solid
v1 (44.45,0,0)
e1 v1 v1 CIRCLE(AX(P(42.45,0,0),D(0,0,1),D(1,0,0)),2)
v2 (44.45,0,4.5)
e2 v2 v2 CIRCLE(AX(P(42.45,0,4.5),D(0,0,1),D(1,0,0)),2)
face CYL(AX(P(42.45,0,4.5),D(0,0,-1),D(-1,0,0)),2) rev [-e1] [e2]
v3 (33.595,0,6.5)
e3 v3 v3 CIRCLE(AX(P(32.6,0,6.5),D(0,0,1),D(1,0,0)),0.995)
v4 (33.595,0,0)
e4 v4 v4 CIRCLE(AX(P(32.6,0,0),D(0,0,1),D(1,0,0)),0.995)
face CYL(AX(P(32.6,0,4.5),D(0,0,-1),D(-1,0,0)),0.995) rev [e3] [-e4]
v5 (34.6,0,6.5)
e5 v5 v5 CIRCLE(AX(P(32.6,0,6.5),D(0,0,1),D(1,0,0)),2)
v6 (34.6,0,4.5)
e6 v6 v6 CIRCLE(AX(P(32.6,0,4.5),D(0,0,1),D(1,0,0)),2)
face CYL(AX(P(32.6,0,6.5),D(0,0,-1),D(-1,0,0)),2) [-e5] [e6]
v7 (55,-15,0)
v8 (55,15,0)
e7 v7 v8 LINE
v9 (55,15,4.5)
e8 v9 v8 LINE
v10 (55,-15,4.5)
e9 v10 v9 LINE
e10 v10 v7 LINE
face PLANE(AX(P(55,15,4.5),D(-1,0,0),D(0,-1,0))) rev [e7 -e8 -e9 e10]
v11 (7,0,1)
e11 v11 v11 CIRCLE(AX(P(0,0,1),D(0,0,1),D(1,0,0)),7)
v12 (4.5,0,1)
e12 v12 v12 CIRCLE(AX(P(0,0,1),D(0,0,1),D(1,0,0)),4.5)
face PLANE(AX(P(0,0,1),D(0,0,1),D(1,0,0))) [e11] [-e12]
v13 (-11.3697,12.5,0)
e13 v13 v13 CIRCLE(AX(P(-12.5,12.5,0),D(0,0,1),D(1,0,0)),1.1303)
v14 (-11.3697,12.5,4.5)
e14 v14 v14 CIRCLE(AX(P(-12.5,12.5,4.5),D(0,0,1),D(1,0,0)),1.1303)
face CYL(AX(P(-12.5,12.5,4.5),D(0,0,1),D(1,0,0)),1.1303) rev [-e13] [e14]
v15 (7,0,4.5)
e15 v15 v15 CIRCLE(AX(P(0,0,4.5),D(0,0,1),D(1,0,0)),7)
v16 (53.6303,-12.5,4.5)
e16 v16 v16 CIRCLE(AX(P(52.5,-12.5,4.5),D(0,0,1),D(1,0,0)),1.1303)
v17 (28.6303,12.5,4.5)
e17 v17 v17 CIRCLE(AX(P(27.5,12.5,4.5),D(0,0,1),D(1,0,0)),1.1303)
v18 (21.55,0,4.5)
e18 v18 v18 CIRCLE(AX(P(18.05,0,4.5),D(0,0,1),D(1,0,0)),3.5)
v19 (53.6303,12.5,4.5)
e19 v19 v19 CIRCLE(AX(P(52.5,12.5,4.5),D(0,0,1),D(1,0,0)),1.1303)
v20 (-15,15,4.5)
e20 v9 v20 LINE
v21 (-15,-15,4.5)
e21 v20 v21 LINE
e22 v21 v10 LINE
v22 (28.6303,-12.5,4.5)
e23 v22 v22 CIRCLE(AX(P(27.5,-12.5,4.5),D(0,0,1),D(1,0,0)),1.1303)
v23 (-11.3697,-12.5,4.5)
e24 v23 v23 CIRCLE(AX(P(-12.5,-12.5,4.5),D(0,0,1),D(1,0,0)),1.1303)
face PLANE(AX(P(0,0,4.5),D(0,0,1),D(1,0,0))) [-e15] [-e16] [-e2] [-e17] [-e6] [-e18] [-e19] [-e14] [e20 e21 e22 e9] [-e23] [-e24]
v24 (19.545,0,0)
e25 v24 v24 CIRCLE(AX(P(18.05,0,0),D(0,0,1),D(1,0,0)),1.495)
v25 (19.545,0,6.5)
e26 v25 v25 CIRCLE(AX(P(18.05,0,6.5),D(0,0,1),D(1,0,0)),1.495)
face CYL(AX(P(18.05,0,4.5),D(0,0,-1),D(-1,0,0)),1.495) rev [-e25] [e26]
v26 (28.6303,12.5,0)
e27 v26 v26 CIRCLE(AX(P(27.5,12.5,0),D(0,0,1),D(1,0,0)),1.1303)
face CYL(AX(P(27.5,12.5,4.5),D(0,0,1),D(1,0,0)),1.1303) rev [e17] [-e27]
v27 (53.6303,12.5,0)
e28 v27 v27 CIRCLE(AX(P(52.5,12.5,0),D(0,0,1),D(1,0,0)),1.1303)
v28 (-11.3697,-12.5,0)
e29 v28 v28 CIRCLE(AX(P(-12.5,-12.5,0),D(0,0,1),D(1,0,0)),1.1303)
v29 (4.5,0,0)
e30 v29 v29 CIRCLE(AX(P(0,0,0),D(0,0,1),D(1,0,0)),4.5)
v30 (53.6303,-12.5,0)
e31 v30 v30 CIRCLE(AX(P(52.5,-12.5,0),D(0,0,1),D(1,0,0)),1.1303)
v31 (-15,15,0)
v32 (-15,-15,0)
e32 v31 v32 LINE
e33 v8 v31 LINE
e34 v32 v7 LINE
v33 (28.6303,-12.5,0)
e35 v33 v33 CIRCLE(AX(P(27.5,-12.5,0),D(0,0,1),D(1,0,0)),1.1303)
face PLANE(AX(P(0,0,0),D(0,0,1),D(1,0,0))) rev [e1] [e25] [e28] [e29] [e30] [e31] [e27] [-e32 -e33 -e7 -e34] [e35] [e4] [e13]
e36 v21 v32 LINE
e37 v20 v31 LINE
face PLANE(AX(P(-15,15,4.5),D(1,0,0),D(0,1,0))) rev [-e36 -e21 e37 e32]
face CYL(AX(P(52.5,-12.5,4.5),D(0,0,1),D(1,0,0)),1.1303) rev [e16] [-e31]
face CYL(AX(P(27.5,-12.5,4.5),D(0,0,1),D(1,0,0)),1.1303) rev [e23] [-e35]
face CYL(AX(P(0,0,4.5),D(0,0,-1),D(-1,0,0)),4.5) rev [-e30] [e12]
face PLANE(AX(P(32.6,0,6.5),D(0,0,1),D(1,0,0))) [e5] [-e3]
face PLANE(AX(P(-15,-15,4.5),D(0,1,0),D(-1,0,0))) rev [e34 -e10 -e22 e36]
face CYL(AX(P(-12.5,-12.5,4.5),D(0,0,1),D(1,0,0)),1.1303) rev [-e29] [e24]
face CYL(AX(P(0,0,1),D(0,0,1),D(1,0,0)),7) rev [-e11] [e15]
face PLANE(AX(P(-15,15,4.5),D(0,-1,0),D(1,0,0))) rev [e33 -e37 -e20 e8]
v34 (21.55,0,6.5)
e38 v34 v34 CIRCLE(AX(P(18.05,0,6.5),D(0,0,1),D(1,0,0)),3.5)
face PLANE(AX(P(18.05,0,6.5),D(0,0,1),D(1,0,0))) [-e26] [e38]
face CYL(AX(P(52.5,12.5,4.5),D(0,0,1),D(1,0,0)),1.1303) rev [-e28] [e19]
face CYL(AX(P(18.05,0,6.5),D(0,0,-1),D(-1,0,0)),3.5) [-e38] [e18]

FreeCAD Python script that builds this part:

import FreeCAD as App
import Part
import Sketcher

V = App.Vector


def add_polygon(sketch, points):
    """Adds a closed chain of lines whose ends are joined by coincident constraints."""
    first, n = sketch.GeometryCount, len(points)
    for a, b in zip(points, points[1:] + points[:1]):
        sketch.addGeometry(Part.LineSegment(App.Vector(*a, 0), App.Vector(*b, 0)), False)
    for i in range(n):
        sketch.addConstraint(Sketcher.Constraint("Coincident", first + i, 2, first + (i + 1) % n, 1))

doc = App.newDocument("Part")
body = doc.addObject("PartDesign::Body", "Body")

# Sketch on XY plane
sketch1 = doc.addObject("Sketcher::SketchObject", "Sketch")
body.addObject(sketch1)
sketch1.AttachmentSupport = (doc.XY_Plane, [""])
sketch1.MapMode = "FlatFace"
add_polygon(sketch1, [(-15, 15), (-15, -15), (55, -15), (55, 15)])  # lines 0-3
sketch1.addGeometry(Part.Circle(V(0, 0, 0), V(0, 0, 1), 4.5), False)  # 4
sketch1.addGeometry(Part.Circle(V(18.1, 0, 0), V(0, 0, 1), 1.5), False)  # 5
sketch1.addGeometry(Part.Circle(V(32.6, 0, 0), V(0, 0, 1), 1), False)  # 6
sketch1.addGeometry(Part.Circle(V(42.4, 0, 0), V(0, 0, 1), 2), False)  # 7
sketch1.addConstraint([
    Sketcher.Constraint("Vertical", 0),
    Sketcher.Constraint("Horizontal", 1),
    Sketcher.Constraint("Vertical", 2),
    Sketcher.Constraint("Horizontal", 3),
    Sketcher.Constraint("Coincident", 4, 3, -1, 1),
    Sketcher.Constraint("PointOnObject", 5, 3, -1),
    Sketcher.Constraint("PointOnObject", 6, 3, -1),
    Sketcher.Constraint("PointOnObject", 7, 3, -1),
    Sketcher.Constraint("Diameter", 4, 9.0),
    Sketcher.Constraint("Diameter", 7, 4.0),
    Sketcher.Constraint("Diameter", 5, 2.99),
    Sketcher.Constraint("Diameter", 6, 1.99),
    Sketcher.Constraint("DistanceX", 1, 1, 1, 2, 70.0),
    Sketcher.Constraint("DistanceY", 0, 2, 0, 1, 30.0),
    Sketcher.Constraint("DistanceX", 0, 2, -1, 1, 15.0),
    Sketcher.Constraint("DistanceY", 0, 2, -1, 1, 15.0),
    Sketcher.Constraint("DistanceX", -1, 1, 6, 3, 32.6),
    Sketcher.Constraint("DistanceX", 5, 3, 7, 3, 24.4),
    Sketcher.Constraint("DistanceX", -1, 1, 5, 3, 18.05),
])
pad1 = doc.addObject("PartDesign::Pad", "Pad")
body.addObject(pad1)
pad1.Profile = sketch1
pad1.Length = 4.5

# Sketch on XY plane
sketch2 = doc.addObject("Sketcher::SketchObject", "Sketch001")
body.addObject(sketch2)
sketch2.AttachmentSupport = (doc.XY_Plane, [""])
sketch2.MapMode = "FlatFace"
sketch2.AttachmentOffset = App.Placement(V(0, 0, 4.5), App.Rotation())
sketch2.addGeometry([
    Part.Circle(V(-12.5, 12.5, 0), V(0, 0, 1), 1.1),  # 0
    Part.Circle(V(-12.5, -12.5, 0), V(0, 0, 1), 1.1),  # 1
    Part.Circle(V(27.5, 12.5, 0), V(0, 0, 1), 1.1),  # 2
    Part.Circle(V(27.5, -12.5, 0), V(0, 0, 1), 1.1),  # 3
    Part.Circle(V(52.5, 12.5, 0), V(0, 0, 1), 1.1),  # 4
    Part.Circle(V(52.5, -12.5, 0), V(0, 0, 1), 1.1),  # 5
], False)
sketch2.addConstraint([
    Sketcher.Constraint("Equal", 0, 1),
    Sketcher.Constraint("Equal", 1, 2),
    Sketcher.Constraint("Equal", 2, 3),
    Sketcher.Constraint("Equal", 3, 4),
    Sketcher.Constraint("Equal", 4, 5),
    Sketcher.Constraint("Symmetric", 0, 3, 1, 3, -1),
    Sketcher.Constraint("Symmetric", 2, 3, 3, 3, -1),
    Sketcher.Constraint("Symmetric", 4, 3, 5, 3, -1),
    Sketcher.Constraint("Horizontal", 0, 3, 2, 3),
    Sketcher.Constraint("Horizontal", 2, 3, 4, 3),
    Sketcher.Constraint("DistanceY", 1, 3, 0, 3, 25.0),
    Sketcher.Constraint("DistanceX", 0, 3, 2, 3, 40.0),
    Sketcher.Constraint("DistanceX", 2, 3, 4, 3, 25.0),
    Sketcher.Constraint("Diameter", 0, 2.2606),
    Sketcher.Constraint("DistanceX", 0, 3, -1, 1, 12.5),
])
doc.recompute()
hole = doc.addObject("PartDesign::Hole", "Hole")
body.addObject(hole)
hole.Profile = sketch2
hole.ThreadType = "None"
hole.Diameter = 2.2606
hole.DepthType = "ThroughAll"

# Sketch on XY plane
sketch3 = doc.addObject("Sketcher::SketchObject", "Sketch002")
body.addObject(sketch3)
sketch3.AttachmentSupport = (doc.XY_Plane, [""])
sketch3.MapMode = "FlatFace"
sketch3.AttachmentOffset = App.Placement(V(0, 0, 4.5), App.Rotation())
sketch3.addGeometry(Part.Circle(V(0, 0, 0), V(0, 0, 1), 7), False)
sketch3.addConstraint([
    Sketcher.Constraint("Coincident", 0, 3, -1, 1),
    Sketcher.Constraint("Diameter", 0, 14.0),
])
pocket1 = doc.addObject("PartDesign::Pocket", "Pocket")
body.addObject(pocket1)
pocket1.Profile = sketch3
pocket1.Length = 3.5

# Sketch on XY plane
sketch4 = doc.addObject("Sketcher::SketchObject", "Sketch003")
body.addObject(sketch4)
sketch4.AttachmentSupport = (doc.XY_Plane, [""])
sketch4.MapMode = "FlatFace"
sketch4.AttachmentOffset = App.Placement(V(0, 0, 4.5), App.Rotation())
sketch4.addGeometry([
    Part.Circle(V(18.1, 0, 0), V(0, 0, 1), 3.5),
    Part.Circle(V(18.1, 0, 0), V(0, 0, 1), 1.5),
], False)
sketch4.addConstraint([
    Sketcher.Constraint("Coincident", 1, 3, 0, 3),
    Sketcher.Constraint("PointOnObject", 0, 3, -1),
    Sketcher.Constraint("Diameter", 0, 7.0),
    Sketcher.Constraint("Diameter", 1, 2.99),
    Sketcher.Constraint("DistanceX", -1, 1, 0, 3, 18.05),
])
pad2 = doc.addObject("PartDesign::Pad", "Pad001")
body.addObject(pad2)
pad2.Profile = sketch4
pad2.Length = 2

# Sketch on XY plane
sketch5 = doc.addObject("Sketcher::SketchObject", "Sketch004")
body.addObject(sketch5)
sketch5.AttachmentSupport = (doc.XY_Plane, [""])
sketch5.MapMode = "FlatFace"
sketch5.AttachmentOffset = App.Placement(V(0, 0, 4.5), App.Rotation())
sketch5.addGeometry([
    Part.Circle(V(32.6, 0, 0), V(0, 0, 1), 2),
    Part.Circle(V(32.6, 0, 0), V(0, 0, 1), 1),
], False)
sketch5.addConstraint([
    Sketcher.Constraint("Coincident", 1, 3, 0, 3),
    Sketcher.Constraint("PointOnObject", 0, 3, -1),
    Sketcher.Constraint("Diameter", 0, 4.0),
    Sketcher.Constraint("Diameter", 1, 1.99),
    Sketcher.Constraint("DistanceX", -1, 1, 0, 3, 32.6),
])
pad3 = doc.addObject("PartDesign::Pad", "Pad002")
body.addObject(pad3)
pad3.Profile = sketch5
pad3.Length = 2

doc.recompute()
